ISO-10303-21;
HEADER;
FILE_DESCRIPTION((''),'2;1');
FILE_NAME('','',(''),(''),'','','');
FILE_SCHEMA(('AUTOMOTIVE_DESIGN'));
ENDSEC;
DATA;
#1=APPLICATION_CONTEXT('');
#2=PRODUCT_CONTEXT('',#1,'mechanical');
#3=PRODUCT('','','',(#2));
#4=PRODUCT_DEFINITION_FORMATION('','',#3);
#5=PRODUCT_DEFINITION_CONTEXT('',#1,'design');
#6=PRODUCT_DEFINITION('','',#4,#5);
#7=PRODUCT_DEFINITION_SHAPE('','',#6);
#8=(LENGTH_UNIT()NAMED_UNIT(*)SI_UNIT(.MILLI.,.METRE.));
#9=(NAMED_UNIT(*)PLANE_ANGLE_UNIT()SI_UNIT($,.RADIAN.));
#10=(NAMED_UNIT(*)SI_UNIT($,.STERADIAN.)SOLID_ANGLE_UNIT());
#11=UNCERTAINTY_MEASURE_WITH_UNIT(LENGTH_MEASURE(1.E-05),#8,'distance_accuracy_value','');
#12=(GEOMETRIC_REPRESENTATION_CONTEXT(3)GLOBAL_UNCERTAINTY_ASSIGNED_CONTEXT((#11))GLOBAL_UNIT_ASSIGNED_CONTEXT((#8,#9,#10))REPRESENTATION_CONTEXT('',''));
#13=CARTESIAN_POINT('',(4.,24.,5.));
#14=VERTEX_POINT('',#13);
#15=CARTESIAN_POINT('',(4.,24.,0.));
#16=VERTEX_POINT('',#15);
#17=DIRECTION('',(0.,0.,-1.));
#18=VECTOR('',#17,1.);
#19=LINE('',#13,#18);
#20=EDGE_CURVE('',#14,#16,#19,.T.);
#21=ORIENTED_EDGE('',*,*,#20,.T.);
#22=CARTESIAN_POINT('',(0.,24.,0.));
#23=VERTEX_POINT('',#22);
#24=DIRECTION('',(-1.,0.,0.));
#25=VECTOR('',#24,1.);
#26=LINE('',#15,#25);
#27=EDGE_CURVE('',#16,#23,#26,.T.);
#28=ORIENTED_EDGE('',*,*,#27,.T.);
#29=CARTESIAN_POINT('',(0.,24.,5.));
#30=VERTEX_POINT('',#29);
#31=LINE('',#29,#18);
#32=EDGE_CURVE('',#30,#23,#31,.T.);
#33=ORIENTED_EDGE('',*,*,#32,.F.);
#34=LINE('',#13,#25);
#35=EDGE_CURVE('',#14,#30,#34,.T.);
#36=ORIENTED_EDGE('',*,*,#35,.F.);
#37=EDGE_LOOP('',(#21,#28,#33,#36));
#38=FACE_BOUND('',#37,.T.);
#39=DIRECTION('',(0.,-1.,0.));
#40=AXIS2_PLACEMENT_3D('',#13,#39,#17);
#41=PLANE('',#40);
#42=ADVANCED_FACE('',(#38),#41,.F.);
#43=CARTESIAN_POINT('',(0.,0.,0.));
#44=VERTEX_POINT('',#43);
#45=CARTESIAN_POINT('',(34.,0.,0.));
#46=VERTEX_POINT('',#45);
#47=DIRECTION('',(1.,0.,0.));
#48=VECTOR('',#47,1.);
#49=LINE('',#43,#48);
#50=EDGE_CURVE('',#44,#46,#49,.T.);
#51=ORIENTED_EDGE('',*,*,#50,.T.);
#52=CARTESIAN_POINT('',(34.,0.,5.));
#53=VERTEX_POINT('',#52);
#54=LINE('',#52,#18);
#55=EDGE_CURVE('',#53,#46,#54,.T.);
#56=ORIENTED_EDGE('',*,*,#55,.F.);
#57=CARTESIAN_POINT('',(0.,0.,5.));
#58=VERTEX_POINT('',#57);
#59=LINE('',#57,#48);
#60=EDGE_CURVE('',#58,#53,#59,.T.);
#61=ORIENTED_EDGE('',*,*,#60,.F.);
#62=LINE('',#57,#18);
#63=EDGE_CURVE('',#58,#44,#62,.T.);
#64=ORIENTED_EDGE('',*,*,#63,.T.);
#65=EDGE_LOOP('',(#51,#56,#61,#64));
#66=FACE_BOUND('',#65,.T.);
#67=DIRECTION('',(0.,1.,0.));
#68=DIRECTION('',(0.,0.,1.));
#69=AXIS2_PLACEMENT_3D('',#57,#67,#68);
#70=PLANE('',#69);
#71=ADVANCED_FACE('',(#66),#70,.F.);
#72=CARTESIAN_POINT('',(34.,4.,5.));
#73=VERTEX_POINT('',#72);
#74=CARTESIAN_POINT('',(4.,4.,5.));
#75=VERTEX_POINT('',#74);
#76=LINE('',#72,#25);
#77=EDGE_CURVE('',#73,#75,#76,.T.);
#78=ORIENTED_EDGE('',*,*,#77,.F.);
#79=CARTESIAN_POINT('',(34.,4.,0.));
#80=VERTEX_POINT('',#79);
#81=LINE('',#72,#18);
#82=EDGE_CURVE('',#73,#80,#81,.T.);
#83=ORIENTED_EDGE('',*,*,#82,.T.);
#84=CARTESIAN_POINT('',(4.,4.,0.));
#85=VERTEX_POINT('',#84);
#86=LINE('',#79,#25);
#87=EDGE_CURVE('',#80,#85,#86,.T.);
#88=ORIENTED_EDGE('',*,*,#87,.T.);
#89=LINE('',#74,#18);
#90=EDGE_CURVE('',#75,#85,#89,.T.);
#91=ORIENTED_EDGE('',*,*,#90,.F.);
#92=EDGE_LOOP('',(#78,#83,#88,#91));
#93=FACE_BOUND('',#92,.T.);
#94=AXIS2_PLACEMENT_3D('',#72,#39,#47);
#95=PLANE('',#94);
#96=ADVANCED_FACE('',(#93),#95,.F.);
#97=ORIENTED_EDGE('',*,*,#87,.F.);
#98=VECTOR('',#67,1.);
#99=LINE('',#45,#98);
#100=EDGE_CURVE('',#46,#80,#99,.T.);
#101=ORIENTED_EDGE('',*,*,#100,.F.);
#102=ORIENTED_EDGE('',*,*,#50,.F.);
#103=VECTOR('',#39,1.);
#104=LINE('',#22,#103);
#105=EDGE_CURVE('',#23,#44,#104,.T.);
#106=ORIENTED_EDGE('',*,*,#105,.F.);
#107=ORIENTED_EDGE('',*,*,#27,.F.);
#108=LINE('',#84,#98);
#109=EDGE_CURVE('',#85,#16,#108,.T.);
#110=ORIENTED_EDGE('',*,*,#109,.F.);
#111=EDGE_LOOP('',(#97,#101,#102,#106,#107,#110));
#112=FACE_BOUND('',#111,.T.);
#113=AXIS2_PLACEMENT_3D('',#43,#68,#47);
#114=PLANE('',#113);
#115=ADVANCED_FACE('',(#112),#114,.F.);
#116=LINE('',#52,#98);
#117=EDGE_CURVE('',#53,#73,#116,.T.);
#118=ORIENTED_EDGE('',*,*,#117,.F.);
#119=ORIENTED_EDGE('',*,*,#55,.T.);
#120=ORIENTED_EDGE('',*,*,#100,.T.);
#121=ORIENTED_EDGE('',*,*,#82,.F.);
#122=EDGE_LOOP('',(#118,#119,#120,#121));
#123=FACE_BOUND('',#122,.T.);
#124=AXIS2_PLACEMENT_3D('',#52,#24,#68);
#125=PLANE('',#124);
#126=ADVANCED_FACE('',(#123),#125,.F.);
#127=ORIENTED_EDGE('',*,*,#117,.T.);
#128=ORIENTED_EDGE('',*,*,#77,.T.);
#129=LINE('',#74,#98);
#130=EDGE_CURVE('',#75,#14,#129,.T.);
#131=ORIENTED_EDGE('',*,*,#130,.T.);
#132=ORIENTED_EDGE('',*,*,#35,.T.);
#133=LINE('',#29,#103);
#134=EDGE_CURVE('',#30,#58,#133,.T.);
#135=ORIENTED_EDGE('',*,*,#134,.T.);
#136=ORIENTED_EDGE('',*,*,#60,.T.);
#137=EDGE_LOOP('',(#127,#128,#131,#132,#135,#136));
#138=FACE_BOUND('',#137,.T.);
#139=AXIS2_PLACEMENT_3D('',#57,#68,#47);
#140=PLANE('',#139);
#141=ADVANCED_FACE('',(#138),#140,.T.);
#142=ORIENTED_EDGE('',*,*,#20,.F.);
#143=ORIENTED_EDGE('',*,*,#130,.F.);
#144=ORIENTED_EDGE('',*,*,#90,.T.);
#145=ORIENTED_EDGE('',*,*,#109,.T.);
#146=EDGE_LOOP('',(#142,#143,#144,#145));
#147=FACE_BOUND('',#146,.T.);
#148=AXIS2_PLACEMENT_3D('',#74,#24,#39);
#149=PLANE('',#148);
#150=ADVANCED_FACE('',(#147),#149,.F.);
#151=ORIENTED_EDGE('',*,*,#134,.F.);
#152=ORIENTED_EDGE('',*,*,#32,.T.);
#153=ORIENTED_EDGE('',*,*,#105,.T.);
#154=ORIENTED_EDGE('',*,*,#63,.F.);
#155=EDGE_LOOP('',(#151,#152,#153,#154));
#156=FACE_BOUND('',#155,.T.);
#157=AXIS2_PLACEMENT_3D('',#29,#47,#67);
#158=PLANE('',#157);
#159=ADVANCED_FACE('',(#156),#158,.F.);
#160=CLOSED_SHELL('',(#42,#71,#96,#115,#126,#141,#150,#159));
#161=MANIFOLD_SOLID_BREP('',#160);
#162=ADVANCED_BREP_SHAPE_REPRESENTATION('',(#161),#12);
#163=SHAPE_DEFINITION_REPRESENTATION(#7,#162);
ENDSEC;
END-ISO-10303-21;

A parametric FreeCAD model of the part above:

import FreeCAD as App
import Part
import Sketcher

V = App.Vector

doc = App.newDocument("Part")
body = doc.addObject("PartDesign::Body", "Body")

# Sketch on XY plane
sketch1 = body.newObject("Sketcher::SketchObject", "Sketch")
sketch1.AttachmentSupport = (doc.getObject("XY_Plane"), [""])
sketch1.MapMode = "FlatFace"
sketch1.addGeometry(Part.LineSegment(V(0, 24, 0), V(0, 0, 0)), False)
sketch1.addGeometry(Part.LineSegment(V(0, 0, 0), V(34, 0, 0)), False)
sketch1.addGeometry(Part.LineSegment(V(34, 0, 0), V(34, 4, 0)), False)
sketch1.addGeometry(Part.LineSegment(V(34, 4, 0), V(4, 4, 0)), False)
sketch1.addGeometry(Part.LineSegment(V(4, 4, 0), V(4, 24, 0)), False)
sketch1.addGeometry(Part.LineSegment(V(4, 24, 0), V(0, 24, 0)), False)
sketch1.addConstraint(Sketcher.Constraint("Coincident", 0, 2, 1, 1))
sketch1.addConstraint(Sketcher.Constraint("Coincident", 1, 2, 2, 1))
sketch1.addConstraint(Sketcher.Constraint("Coincident", 2, 2, 3, 1))
sketch1.addConstraint(Sketcher.Constraint("Coincident", 3, 2, 4, 1))
sketch1.addConstraint(Sketcher.Constraint("Coincident", 4, 2, 5, 1))
sketch1.addConstraint(Sketcher.Constraint("Coincident", 5, 2, 0, 1))
sketch1.addConstraint(Sketcher.Constraint("Vertical", 0))
sketch1.addConstraint(Sketcher.Constraint("Horizontal", 1))
sketch1.addConstraint(Sketcher.Constraint("Vertical", 2))
sketch1.addConstraint(Sketcher.Constraint("Horizontal", 3))
sketch1.addConstraint(Sketcher.Constraint("Vertical", 4))
sketch1.addConstraint(Sketcher.Constraint("Horizontal", 5))
sketch1.addConstraint(Sketcher.Constraint("Coincident", 0, 2, -1, 1))
sketch1.addConstraint(Sketcher.Constraint("Equal", 5, 2))
sketch1.addConstraint(Sketcher.Constraint("DistanceX", 1, 1, 1, 2, 34.0))
sketch1.addConstraint(Sketcher.Constraint("DistanceX", 3, 2, 3, 1, 30.0))
sketch1.addConstraint(Sketcher.Constraint("DistanceY", 0, 2, 0, 1, 24.0))
pad1 = body.newObject("PartDesign::Pad", "Pad")
pad1.Profile = sketch1
pad1.Length = 5

doc.recompute()
